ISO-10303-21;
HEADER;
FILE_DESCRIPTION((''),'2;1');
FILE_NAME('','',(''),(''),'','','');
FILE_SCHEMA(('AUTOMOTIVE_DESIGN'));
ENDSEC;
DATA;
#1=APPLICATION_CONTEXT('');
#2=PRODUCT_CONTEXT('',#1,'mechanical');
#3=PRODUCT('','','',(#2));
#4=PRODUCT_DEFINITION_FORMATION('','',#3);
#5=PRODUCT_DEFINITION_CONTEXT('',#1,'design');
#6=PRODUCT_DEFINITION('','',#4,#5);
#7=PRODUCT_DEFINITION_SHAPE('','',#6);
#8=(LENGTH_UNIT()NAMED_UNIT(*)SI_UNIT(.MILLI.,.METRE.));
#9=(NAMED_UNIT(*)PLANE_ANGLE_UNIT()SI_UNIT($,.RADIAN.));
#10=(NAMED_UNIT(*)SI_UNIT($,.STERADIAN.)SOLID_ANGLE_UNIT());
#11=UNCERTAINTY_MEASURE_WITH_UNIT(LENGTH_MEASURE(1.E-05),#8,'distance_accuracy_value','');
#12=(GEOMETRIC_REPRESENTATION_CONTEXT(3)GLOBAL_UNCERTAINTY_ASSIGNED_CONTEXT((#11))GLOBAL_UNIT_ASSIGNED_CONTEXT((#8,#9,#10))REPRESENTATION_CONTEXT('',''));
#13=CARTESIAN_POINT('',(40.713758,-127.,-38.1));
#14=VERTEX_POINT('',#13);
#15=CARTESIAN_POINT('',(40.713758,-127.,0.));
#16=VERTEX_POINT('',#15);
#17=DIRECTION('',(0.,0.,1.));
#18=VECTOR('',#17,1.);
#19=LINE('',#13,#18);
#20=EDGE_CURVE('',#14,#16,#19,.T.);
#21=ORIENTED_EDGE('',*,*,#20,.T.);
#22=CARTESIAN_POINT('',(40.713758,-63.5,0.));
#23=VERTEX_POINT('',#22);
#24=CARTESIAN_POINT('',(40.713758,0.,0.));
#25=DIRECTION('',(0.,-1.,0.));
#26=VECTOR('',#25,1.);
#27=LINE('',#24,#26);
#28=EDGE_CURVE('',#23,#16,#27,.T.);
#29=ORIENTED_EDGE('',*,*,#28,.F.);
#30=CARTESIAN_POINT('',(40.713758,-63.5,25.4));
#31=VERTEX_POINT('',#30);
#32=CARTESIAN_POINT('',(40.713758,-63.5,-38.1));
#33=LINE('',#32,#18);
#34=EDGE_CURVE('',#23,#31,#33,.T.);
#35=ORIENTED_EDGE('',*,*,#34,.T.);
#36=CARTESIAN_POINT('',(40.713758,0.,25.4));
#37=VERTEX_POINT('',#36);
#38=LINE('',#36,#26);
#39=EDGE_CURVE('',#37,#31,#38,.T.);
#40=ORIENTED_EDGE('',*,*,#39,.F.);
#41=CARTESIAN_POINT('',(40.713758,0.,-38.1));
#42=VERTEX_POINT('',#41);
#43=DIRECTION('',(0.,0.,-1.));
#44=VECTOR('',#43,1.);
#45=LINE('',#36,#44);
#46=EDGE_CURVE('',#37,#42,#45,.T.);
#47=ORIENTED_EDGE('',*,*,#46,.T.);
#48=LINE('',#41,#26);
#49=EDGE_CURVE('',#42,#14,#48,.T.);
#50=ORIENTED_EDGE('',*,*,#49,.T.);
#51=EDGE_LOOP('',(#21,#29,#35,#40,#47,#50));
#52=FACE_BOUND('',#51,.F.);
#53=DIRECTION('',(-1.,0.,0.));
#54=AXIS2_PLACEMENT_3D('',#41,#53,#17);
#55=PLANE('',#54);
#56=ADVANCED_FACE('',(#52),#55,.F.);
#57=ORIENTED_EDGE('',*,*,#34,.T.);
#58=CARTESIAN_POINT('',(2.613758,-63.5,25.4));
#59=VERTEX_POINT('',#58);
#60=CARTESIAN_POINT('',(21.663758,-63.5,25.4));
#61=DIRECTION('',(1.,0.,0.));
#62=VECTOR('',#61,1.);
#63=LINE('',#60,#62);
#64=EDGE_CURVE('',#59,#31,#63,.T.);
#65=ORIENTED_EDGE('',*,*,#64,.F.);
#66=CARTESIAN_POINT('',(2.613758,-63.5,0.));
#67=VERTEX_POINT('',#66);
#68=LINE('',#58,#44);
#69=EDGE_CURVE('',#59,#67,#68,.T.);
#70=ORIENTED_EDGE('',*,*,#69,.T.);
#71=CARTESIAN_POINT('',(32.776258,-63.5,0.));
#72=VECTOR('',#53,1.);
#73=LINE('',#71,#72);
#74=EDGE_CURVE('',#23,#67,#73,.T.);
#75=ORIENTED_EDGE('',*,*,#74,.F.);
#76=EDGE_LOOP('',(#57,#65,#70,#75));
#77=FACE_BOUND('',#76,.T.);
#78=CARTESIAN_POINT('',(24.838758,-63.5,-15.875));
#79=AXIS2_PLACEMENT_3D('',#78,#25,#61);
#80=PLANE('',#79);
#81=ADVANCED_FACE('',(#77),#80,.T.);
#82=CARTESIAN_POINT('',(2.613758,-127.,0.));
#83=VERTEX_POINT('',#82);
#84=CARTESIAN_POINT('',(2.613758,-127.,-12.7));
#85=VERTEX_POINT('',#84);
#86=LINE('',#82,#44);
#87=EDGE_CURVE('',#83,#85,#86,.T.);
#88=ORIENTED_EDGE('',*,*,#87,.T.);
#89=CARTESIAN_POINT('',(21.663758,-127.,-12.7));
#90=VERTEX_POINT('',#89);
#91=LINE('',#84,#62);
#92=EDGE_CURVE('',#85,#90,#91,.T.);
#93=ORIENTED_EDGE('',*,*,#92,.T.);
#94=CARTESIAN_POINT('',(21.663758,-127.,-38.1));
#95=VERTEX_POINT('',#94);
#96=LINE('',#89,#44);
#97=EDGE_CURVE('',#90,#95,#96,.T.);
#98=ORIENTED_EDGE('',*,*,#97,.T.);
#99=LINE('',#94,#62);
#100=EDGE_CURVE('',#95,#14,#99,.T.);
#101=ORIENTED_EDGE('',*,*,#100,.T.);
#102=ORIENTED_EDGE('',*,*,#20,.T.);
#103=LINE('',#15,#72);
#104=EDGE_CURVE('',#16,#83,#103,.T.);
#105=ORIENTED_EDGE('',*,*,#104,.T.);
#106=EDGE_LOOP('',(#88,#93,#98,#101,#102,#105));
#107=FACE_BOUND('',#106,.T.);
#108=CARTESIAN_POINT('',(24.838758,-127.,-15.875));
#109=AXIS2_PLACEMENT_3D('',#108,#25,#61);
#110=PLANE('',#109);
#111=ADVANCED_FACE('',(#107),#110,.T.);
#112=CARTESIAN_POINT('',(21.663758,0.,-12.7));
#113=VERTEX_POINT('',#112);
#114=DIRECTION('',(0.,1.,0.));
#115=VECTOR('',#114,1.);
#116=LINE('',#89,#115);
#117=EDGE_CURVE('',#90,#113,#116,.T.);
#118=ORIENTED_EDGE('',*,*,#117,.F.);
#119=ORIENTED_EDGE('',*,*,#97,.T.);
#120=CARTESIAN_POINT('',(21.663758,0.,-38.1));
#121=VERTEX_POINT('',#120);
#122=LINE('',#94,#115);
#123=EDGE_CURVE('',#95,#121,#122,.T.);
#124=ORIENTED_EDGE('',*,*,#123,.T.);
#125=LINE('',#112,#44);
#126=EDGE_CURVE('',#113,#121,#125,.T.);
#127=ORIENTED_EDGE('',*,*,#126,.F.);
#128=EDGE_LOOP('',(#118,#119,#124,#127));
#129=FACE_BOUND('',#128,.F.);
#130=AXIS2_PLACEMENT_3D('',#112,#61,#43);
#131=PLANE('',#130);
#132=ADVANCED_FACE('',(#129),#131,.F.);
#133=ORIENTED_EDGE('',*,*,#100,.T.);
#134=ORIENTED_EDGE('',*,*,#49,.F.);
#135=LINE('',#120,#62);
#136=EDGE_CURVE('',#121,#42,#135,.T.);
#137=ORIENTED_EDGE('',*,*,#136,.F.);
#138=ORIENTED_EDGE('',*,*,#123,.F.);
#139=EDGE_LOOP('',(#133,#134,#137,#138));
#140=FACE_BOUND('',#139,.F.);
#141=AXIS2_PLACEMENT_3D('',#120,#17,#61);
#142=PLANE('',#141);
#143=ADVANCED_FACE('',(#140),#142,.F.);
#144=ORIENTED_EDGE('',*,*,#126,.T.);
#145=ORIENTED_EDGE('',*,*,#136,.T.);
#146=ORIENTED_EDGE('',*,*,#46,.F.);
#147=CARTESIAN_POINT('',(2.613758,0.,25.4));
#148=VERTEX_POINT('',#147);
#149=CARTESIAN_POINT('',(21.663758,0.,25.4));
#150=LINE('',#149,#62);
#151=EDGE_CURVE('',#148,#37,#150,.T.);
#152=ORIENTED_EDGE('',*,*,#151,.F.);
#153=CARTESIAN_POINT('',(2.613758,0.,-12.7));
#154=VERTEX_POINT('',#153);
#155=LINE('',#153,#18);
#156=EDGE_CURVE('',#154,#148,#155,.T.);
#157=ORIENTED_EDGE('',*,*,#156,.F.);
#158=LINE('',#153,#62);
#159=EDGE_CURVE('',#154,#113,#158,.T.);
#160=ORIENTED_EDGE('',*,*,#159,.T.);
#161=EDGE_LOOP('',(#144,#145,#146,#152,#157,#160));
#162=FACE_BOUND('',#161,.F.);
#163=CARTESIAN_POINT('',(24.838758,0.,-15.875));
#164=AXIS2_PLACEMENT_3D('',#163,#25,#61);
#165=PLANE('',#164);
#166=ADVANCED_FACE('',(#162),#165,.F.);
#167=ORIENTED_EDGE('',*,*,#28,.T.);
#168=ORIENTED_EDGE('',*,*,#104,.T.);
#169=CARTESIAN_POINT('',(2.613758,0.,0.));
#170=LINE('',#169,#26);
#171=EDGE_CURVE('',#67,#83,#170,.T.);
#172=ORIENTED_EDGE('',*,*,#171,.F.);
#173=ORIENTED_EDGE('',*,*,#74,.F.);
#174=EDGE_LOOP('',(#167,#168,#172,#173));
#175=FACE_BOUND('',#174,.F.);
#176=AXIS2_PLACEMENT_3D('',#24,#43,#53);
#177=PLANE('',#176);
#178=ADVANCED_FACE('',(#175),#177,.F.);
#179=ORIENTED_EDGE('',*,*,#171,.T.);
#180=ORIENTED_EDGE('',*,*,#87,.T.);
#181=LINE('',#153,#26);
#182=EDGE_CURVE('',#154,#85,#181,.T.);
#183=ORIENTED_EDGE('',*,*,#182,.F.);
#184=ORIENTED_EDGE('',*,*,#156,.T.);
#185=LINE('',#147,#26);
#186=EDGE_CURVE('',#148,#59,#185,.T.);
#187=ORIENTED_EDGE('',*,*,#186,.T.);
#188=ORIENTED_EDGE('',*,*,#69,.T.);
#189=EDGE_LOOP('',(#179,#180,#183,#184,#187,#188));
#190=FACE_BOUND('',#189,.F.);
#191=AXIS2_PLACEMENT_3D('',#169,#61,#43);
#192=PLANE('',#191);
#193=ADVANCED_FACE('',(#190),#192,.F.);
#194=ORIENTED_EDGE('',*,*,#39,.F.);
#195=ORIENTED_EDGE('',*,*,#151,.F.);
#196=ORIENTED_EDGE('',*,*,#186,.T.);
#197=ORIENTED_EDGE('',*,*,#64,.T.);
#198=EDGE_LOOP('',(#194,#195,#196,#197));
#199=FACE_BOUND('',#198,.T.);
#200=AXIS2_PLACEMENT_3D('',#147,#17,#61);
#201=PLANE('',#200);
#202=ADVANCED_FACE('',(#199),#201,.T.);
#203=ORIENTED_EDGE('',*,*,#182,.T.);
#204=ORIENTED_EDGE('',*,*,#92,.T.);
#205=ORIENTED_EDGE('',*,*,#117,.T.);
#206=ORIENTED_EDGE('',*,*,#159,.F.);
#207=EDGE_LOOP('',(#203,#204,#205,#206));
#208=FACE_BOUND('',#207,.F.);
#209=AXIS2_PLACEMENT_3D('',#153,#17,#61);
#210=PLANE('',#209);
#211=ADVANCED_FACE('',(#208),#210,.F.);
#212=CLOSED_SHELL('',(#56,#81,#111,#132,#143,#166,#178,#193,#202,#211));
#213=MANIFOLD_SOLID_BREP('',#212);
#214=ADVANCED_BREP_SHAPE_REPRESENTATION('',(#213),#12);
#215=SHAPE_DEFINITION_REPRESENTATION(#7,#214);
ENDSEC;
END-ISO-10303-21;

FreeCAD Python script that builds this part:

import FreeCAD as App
import Part
import Sketcher
Q = App.Units.Quantity

doc = App.newDocument("Part")
params = doc.addObject("Spreadsheet::Sheet", "Params")
for row, (alias, value) in enumerate([
    ("sketch1_height", "1 in"),
    ("sketch1_width", "1.5 in"),
    ("pad1_length", "5 in"),
    ("sketch2_height", "1 in"),
    ("sketch2_width", "1.5 in"),
    ("pad2_length", "2.5 in"),
], start=1):
    params.set(f"A{row}", alias)
    params.set(f"B{row}", "=" + value)
    params.setAlias(f"B{row}", alias)

body = doc.addObject("PartDesign::Body", "Body")

sketch1 = doc.addObject("Sketcher::SketchObject", "Sketch")
body.addObject(sketch1)
sketch1.AttachmentSupport = (doc.XZ_Plane, [""])
sketch1.MapMode = "FlatFace"
sketch1.addGeometry([
    Part.LineSegment(App.Vector(21.663758, -38.1, 0), App.Vector(40.713758, -38.1, 0)),
    Part.LineSegment(App.Vector(40.713758, -38.1, 0), App.Vector(40.713758, 0, 0)),
    Part.LineSegment(App.Vector(40.713758, 0, 0), App.Vector(2.613758, 0, 0)),
    Part.LineSegment(App.Vector(2.613758, 0, 0), App.Vector(2.613758, -12.7, 0)),
    Part.LineSegment(App.Vector(2.613758, -12.7, 0), App.Vector(21.663758, -12.7, 0)),
    Part.LineSegment(App.Vector(21.663758, -12.7, 0), App.Vector(21.663758, -38.1, 0)),
], False)
sketch1.addConstraint([
    Sketcher.Constraint("Coincident", 0, 2, 1, 1),
    Sketcher.Constraint("Coincident", 1, 2, 2, 1),
    Sketcher.Constraint("Coincident", 2, 2, 3, 1),
    Sketcher.Constraint("Coincident", 3, 2, 4, 1),
    Sketcher.Constraint("Coincident", 4, 2, 5, 1),
    Sketcher.Constraint("Coincident", 5, 2, 0, 1),
    Sketcher.Constraint("Horizontal", 0),
    Sketcher.Constraint("Vertical", 1),
    Sketcher.Constraint("Horizontal", 2),
    Sketcher.Constraint("Vertical", 3),
    Sketcher.Constraint("Horizontal", 4),
    Sketcher.Constraint("Vertical", 5),
    Sketcher.Constraint("PointOnObject", 1, 2, -1),
    Sketcher.Constraint("Equal", 0, 4),
    Sketcher.Constraint("Equal", 2, 1),
    Sketcher.Constraint("DistanceY", 5, 2, 5, 1, Q("1 in")),
    Sketcher.Constraint("DistanceX", 2, 2, 2, 1, Q("1.5 in")),
    Sketcher.Constraint("DistanceX", -1, 1, 4, 2, 21.663758),
])
sketch1.setExpression("Constraints[15]", "Params.sketch1_height")
sketch1.setExpression("Constraints[16]", "Params.sketch1_width")
pad1 = doc.addObject("PartDesign::Pad", "Pad")
body.addObject(pad1)
pad1.Profile = sketch1
pad1.setExpression("Length", "Params.pad1_length")

sketch2 = doc.addObject("Sketcher::SketchObject", "Sketch001")
body.addObject(sketch2)
sketch2.AttachmentSupport = (doc.XZ_Plane, [""])
sketch2.MapMode = "FlatFace"
sketch2.addGeometry([
    Part.LineSegment(App.Vector(21.663758, -38.1, 0), App.Vector(40.713758, -38.1, 0)),
    Part.LineSegment(App.Vector(40.713758, -38.1, 0), App.Vector(40.713758, 25.4, 0)),
    Part.LineSegment(App.Vector(40.713758, 25.4, 0), App.Vector(2.613758, 25.4, 0)),
    Part.LineSegment(App.Vector(2.613758, 25.4, 0), App.Vector(2.613758, -12.7, 0)),
    Part.LineSegment(App.Vector(2.613758, -12.7, 0), App.Vector(21.663758, -12.7, 0)),
    Part.LineSegment(App.Vector(21.663758, -12.7, 0), App.Vector(21.663758, -38.1, 0)),
], False)
sketch2.addConstraint([
    Sketcher.Constraint("Coincident", 0, 2, 1, 1),
    Sketcher.Constraint("Coincident", 1, 2, 2, 1),
    Sketcher.Constraint("Coincident", 2, 2, 3, 1),
    Sketcher.Constraint("Coincident", 3, 2, 4, 1),
    Sketcher.Constraint("Coincident", 4, 2, 5, 1),
    Sketcher.Constraint("Coincident", 5, 2, 0, 1),
    Sketcher.Constraint("Horizontal", 0),
    Sketcher.Constraint("Vertical", 1),
    Sketcher.Constraint("Horizontal", 2),
    Sketcher.Constraint("Vertical", 3),
    Sketcher.Constraint("Horizontal", 4),
    Sketcher.Constraint("Vertical", 5),
    Sketcher.Constraint("Equal", 0, 4),
    Sketcher.Constraint("Equal", 2, 3),
    Sketcher.Constraint("DistanceY", 5, 2, 5, 1, Q("1 in")),
    Sketcher.Constraint("DistanceX", 2, 2, 2, 1, Q("1.5 in")),
    Sketcher.Constraint("DistanceY", -1, 1, 1, 2, Q("1 in")),
    Sketcher.Constraint("DistanceX", -1, 1, 4, 2, 21.663758),
])
sketch2.setExpression("Constraints[14]", "Params.sketch2_height")
sketch2.setExpression("Constraints[15]", "Params.sketch2_width")
pad2 = doc.addObject("PartDesign::Pad", "Pad001")
body.addObject(pad2)
pad2.Profile = sketch2
pad2.setExpression("Length", "Params.pad2_length")

doc.recompute()
